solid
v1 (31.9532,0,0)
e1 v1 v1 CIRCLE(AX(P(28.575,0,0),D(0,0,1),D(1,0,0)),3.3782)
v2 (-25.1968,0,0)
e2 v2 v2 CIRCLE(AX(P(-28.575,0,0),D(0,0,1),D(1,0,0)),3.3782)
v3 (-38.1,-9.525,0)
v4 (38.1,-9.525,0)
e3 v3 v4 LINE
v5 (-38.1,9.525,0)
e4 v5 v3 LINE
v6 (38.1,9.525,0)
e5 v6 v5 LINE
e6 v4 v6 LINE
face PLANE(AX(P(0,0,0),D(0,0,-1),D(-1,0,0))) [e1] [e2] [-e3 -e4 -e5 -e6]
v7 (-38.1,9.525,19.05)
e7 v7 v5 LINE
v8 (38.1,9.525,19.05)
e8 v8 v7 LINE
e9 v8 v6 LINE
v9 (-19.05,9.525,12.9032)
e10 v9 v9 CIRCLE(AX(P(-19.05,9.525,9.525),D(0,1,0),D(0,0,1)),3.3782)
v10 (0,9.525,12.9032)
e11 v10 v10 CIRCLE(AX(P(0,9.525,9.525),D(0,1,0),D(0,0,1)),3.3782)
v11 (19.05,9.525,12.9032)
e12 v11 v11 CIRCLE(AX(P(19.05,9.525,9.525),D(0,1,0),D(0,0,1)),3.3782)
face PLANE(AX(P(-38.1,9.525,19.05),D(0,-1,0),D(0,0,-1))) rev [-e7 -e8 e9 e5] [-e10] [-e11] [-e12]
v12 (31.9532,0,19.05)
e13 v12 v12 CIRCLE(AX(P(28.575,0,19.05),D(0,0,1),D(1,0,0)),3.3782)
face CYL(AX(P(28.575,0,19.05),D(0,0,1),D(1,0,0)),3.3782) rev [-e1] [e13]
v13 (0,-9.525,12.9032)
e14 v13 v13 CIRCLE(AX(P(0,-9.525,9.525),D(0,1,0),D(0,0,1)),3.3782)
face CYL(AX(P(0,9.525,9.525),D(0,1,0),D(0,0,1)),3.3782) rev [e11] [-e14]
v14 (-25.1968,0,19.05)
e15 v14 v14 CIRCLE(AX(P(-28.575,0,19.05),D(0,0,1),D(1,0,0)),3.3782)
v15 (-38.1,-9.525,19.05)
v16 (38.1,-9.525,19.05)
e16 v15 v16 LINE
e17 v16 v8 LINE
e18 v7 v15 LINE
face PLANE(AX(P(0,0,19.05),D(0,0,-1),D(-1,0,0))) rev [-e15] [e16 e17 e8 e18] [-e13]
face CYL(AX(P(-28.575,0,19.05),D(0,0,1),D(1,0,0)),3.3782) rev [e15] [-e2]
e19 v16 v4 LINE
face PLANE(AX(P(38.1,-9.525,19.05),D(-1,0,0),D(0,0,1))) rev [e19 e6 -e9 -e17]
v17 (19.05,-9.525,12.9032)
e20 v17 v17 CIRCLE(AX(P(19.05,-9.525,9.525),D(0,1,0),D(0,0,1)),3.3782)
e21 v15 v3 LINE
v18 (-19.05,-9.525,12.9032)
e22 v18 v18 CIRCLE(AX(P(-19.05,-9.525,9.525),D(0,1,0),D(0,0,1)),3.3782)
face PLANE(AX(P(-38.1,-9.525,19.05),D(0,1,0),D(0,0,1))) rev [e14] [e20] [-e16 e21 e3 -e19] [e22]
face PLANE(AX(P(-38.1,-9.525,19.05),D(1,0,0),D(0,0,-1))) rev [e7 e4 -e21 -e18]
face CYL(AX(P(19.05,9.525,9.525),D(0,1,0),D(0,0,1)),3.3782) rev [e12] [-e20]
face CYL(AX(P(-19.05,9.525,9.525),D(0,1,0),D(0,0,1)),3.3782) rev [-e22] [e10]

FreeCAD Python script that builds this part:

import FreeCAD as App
import Part
import Sketcher
Q = App.Units.Quantity

doc = App.newDocument("Part")
body = doc.addObject("PartDesign::Body", "Body")

# Sketch on XY plane
sketch1 = body.newObject("Sketcher::SketchObject", "Sketch")
sketch1.AttachmentSupport = (doc.getObject("XY_Plane"), [""])
sketch1.MapMode = "FlatFace"
sketch1.addGeometry(Part.LineSegment(App.Vector(-38, 10, 0), App.Vector(-38, -10, 0)), False)
sketch1.addGeometry(Part.LineSegment(App.Vector(-38, -10, 0), App.Vector(38, -10, 0)), False)
sketch1.addGeometry(Part.LineSegment(App.Vector(38, -10, 0), App.Vector(38, 10, 0)), False)
sketch1.addGeometry(Part.LineSegment(App.Vector(38, 10, 0), App.Vector(-38, 10, 0)), False)
sketch1.addConstraint(Sketcher.Constraint("Coincident", 0, 2, 1, 1))
sketch1.addConstraint(Sketcher.Constraint("Coincident", 1, 2, 2, 1))
sketch1.addConstraint(Sketcher.Constraint("Coincident", 2, 2, 3, 1))
sketch1.addConstraint(Sketcher.Constraint("Coincident", 3, 2, 0, 1))
sketch1.addConstraint(Sketcher.Constraint("Vertical", 0))
sketch1.addConstraint(Sketcher.Constraint("Horizontal", 1))
sketch1.addConstraint(Sketcher.Constraint("Vertical", 2))
sketch1.addConstraint(Sketcher.Constraint("Horizontal", 3))
sketch1.addConstraint(Sketcher.Constraint("Symmetric", 0, 2, 2, 2, -1, 1))
sketch1.addConstraint(Sketcher.Constraint("DistanceX", 1, 1, 1, 2, Q("3 in")))
sketch1.addConstraint(Sketcher.Constraint("DistanceY", 0, 2, 0, 1, Q("0.75 in")))
pad1 = body.newObject("PartDesign::Pad", "Pad")
pad1.Profile = sketch1
pad1.Length = Q("0.75 in")

# Sketch on XY plane
sketch2 = body.newObject("Sketcher::SketchObject", "Sketch001")
sketch2.AttachmentSupport = (doc.getObject("XY_Plane"), [""])
sketch2.MapMode = "FlatFace"
sketch2.AttachmentOffset = App.Placement(App.Vector(0, 0, 0.75 * 25.4), App.Rotation())
sketch2.addGeometry(Part.Circle(App.Vector(-28.6, 0, 0), App.Vector(0, 0, 1), 3.4), False)
sketch2.addGeometry(Part.Circle(App.Vector(28.6, 0, 0), App.Vector(0, 0, 1), 3.4), False)
sketch2.addConstraint(Sketcher.Constraint("Equal", 0, 1))
sketch2.addConstraint(Sketcher.Constraint("Symmetric", 0, 3, 1, 3, -1, 1))
sketch2.addConstraint(Sketcher.Constraint("PointOnObject", 0, 3, -1))
sketch2.addConstraint(Sketcher.Constraint("Diameter", 0, Q("0.266 in")))
sketch2.addConstraint(Sketcher.Constraint("DistanceX", 0, 3, 1, 3, Q("2.25 in")))
doc.recompute()
hole = body.newObject("PartDesign::Hole", "Hole")
hole.Profile = sketch2
hole.ThreadType = "None"
hole.Diameter = Q("0.266 in")
hole.DepthType = "ThroughAll"

# Sketch on XZ plane
sketch3 = body.newObject("Sketcher::SketchObject", "Sketch002")
sketch3.AttachmentSupport = (doc.getObject("XZ_Plane"), [""])
sketch3.MapMode = "FlatFace"
sketch3.AttachmentOffset = App.Placement(App.Vector(0, 0, -0.375 * 25.4), App.Rotation())
sketch3.addGeometry(Part.Circle(App.Vector(0, 9.5, 0), App.Vector(0, 0, 1), 3.4), False)
sketch3.addGeometry(Part.Circle(App.Vector(-19.1, 9.5, 0), App.Vector(0, 0, 1), 3.4), False)
sketch3.addGeometry(Part.Circle(App.Vector(19.1, 9.5, 0), App.Vector(0, 0, 1), 3.4), False)
sketch3.addConstraint(Sketcher.Constraint("Equal", 0, 1))
sketch3.addConstraint(Sketcher.Constraint("Equal", 1, 2))
sketch3.addConstraint(Sketcher.Constraint("Symmetric", 1, 3, 2, 3, -2))
sketch3.addConstraint(Sketcher.Constraint("PointOnObject", 0, 3, -2))
sketch3.addConstraint(Sketcher.Constraint("Horizontal", 0, 3, 1, 3))
sketch3.addConstraint(Sketcher.Constraint("Diameter", 0, Q("0.266 in")))
sketch3.addConstraint(Sketcher.Constraint("DistanceX", 1, 3, 2, 3, Q("1.5 in")))
sketch3.addConstraint(Sketcher.Constraint("DistanceY", -1, 1, 0, 3, Q("0.375 in")))
doc.recompute()
hole2 = body.newObject("PartDesign::Hole", "Hole001")
hole2.Profile = sketch3
hole2.ThreadType = "None"
hole2.Diameter = Q("0.266 in")
hole2.DepthType = "ThroughAll"
hole2.Reversed = True

doc.recompute()
